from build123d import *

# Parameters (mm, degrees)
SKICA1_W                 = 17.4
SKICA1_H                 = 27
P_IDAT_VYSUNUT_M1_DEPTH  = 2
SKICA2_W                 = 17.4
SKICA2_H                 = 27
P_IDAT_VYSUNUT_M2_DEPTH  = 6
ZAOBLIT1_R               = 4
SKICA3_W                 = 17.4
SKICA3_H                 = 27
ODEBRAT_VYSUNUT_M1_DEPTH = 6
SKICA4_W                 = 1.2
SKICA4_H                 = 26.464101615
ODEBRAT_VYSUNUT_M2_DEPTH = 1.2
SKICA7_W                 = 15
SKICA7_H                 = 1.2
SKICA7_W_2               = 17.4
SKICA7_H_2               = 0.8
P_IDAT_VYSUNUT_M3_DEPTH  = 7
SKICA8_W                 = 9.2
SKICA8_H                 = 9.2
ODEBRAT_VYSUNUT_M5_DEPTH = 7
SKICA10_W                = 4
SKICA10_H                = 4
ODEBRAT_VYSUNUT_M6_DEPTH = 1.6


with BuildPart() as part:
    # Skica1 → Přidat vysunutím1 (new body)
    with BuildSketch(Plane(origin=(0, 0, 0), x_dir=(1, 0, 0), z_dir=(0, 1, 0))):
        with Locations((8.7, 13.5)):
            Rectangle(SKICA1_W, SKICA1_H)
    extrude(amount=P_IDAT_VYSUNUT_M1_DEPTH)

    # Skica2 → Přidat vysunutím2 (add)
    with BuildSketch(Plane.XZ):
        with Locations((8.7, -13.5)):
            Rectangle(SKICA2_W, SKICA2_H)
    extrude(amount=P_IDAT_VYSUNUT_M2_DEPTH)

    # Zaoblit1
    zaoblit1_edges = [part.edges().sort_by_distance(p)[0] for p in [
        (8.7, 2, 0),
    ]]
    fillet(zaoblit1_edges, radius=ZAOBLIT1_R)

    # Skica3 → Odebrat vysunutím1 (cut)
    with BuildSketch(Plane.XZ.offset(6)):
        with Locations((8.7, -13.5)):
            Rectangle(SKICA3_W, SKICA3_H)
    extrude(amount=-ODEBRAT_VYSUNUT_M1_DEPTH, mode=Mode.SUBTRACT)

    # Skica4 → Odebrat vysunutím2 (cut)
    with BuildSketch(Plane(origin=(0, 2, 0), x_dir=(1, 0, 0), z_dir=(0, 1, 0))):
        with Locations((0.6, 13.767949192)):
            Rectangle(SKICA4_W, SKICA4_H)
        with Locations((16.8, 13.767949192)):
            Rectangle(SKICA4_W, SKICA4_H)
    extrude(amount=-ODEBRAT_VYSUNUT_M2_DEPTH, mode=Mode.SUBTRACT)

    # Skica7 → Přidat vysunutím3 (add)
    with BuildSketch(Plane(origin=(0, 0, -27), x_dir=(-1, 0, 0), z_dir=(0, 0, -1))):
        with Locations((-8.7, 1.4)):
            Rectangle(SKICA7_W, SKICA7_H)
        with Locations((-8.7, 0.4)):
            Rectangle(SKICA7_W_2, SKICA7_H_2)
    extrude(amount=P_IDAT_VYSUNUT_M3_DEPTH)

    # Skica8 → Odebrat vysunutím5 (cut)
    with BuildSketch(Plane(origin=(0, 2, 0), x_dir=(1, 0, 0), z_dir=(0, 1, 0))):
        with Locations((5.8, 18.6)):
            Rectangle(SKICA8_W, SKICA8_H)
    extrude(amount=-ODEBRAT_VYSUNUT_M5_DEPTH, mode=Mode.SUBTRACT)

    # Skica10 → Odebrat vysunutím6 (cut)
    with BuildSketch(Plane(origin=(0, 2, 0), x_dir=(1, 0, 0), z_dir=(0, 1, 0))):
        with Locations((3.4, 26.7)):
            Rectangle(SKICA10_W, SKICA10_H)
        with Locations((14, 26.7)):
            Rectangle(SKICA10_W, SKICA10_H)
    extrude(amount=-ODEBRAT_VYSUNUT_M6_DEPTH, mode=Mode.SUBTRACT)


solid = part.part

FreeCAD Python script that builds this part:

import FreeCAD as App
import Part
import Sketcher
from FreeCAD import Vector


def edges_at(feature, points):
    """Names of the edges that pass closest to the given points."""
    edges = feature.Shape.Edges
    near = lambda p: min(range(len(edges)), key=lambda i: edges[i].distToShape(Part.Vertex(*p))[0])
    return sorted({f"Edge{near(p) + 1}" for p in points})

doc = App.newDocument("Part")
body = doc.addObject("PartDesign::Body", "Body")

# Sketch on XZ plane
sketch1 = body.newObject("Sketcher::SketchObject", "Sketch")
sketch1.AttachmentSupport = (doc.getObject("XZ_Plane"), [""])
sketch1.MapMode = "FlatFace"
sketch1.addGeometry(Part.LineSegment(Vector(0, -27, 0), Vector(0, 0, 0)), False)
sketch1.addGeometry(Part.LineSegment(Vector(0, 0, 0), Vector(17, 0, 0)), False)
sketch1.addGeometry(Part.LineSegment(Vector(17, 0, 0), Vector(17, -27, 0)), False)
sketch1.addGeometry(Part.LineSegment(Vector(17, -27, 0), Vector(0, -27, 0)), False)
sketch1.addConstraint(Sketcher.Constraint("Coincident", 0, 2, 1, 1))
sketch1.addConstraint(Sketcher.Constraint("Coincident", 1, 2, 2, 1))
sketch1.addConstraint(Sketcher.Constraint("Coincident", 2, 2, 3, 1))
sketch1.addConstraint(Sketcher.Constraint("Coincident", 3, 2, 0, 1))
sketch1.addConstraint(Sketcher.Constraint("Vertical", 0))
sketch1.addConstraint(Sketcher.Constraint("Horizontal", 1))
sketch1.addConstraint(Sketcher.Constraint("Vertical", 2))
sketch1.addConstraint(Sketcher.Constraint("Horizontal", 3))
sketch1.addConstraint(Sketcher.Constraint("Coincident", 0, 2, -1, 1))
sketch1.addConstraint(Sketcher.Constraint("DistanceY", 0, 1, 0, 2, 27.0))
sketch1.addConstraint(Sketcher.Constraint("DistanceX", 1, 1, 1, 2, 17.4))
pad1 = body.newObject("PartDesign::Pad", "Pad")
pad1.Profile = sketch1
pad1.Length = 2
pad1.Reversed = True

# Sketch on XZ plane
sketch2 = body.newObject("Sketcher::SketchObject", "Sketch001")
sketch2.AttachmentSupport = (doc.getObject("XZ_Plane"), [""])
sketch2.MapMode = "FlatFace"
sketch2.addGeometry(Part.LineSegment(Vector(0, 0, 0), Vector(0, -27, 0)), False)
sketch2.addGeometry(Part.LineSegment(Vector(0, -27, 0), Vector(17, -27, 0)), False)
sketch2.addGeometry(Part.LineSegment(Vector(17, -27, 0), Vector(17, 0, 0)), False)
sketch2.addGeometry(Part.LineSegment(Vector(17, 0, 0), Vector(0, 0, 0)), False)
sketch2.addConstraint(Sketcher.Constraint("Coincident", 0, 2, 1, 1))
sketch2.addConstraint(Sketcher.Constraint("Coincident", 1, 2, 2, 1))
sketch2.addConstraint(Sketcher.Constraint("Coincident", 2, 2, 3, 1))
sketch2.addConstraint(Sketcher.Constraint("Coincident", 3, 2, 0, 1))
sketch2.addConstraint(Sketcher.Constraint("Vertical", 0))
sketch2.addConstraint(Sketcher.Constraint("Horizontal", 1))
sketch2.addConstraint(Sketcher.Constraint("Vertical", 2))
sketch2.addConstraint(Sketcher.Constraint("Horizontal", 3))
sketch2.addConstraint(Sketcher.Constraint("Coincident", 3, 2, -1, 1))
sketch2.addConstraint(Sketcher.Constraint("DistanceY", 0, 2, 0, 1, 27.0))
sketch2.addConstraint(Sketcher.Constraint("DistanceX", 1, 1, 1, 2, 17.4))
pad2 = body.newObject("PartDesign::Pad", "Pad001")
pad2.Profile = sketch2
pad2.Length = 6
doc.recompute()

fillet = body.newObject("PartDesign::Fillet", "Fillet")
fillet.Base = (pad2, edges_at(pad2, [(8.7, 2, 0)]))
fillet.Radius = 4

# Sketch on XZ plane
sketch3 = body.newObject("Sketcher::SketchObject", "Sketch002")
sketch3.AttachmentSupport = (doc.getObject("XZ_Plane"), [""])
sketch3.MapMode = "FlatFace"
sketch3.AttachmentOffset = App.Placement(Vector(0, 0, 6), App.Rotation())
sketch3.addGeometry(Part.LineSegment(Vector(0, 0, 0), Vector(0, -27, 0)), False)
sketch3.addGeometry(Part.LineSegment(Vector(0, -27, 0), Vector(17, -27, 0)), False)
sketch3.addGeometry(Part.LineSegment(Vector(17, -27, 0), Vector(17, 0, 0)), False)
sketch3.addGeometry(Part.LineSegment(Vector(17, 0, 0), Vector(0, 0, 0)), False)
sketch3.addConstraint(Sketcher.Constraint("Coincident", 0, 2, 1, 1))
sketch3.addConstraint(Sketcher.Constraint("Coincident", 1, 2, 2, 1))
sketch3.addConstraint(Sketcher.Constraint("Coincident", 2, 2, 3, 1))
sketch3.addConstraint(Sketcher.Constraint("Coincident", 3, 2, 0, 1))
sketch3.addConstraint(Sketcher.Constraint("Vertical", 0))
sketch3.addConstraint(Sketcher.Constraint("Horizontal", 1))
sketch3.addConstraint(Sketcher.Constraint("Vertical", 2))
sketch3.addConstraint(Sketcher.Constraint("Horizontal", 3))
sketch3.addConstraint(Sketcher.Constraint("Coincident", 3, 2, -1, 1))
sketch3.addConstraint(Sketcher.Constraint("DistanceY", 0, 2, 0, 1, 27.0))
sketch3.addConstraint(Sketcher.Constraint("DistanceX", 1, 1, 1, 2, 17.4))
pocket1 = body.newObject("PartDesign::Pocket", "Pocket")
pocket1.Profile = sketch3
pocket1.Length = 6

# Sketch on XZ plane
sketch4 = body.newObject("Sketcher::SketchObject", "Sketch003")
sketch4.AttachmentSupport = (doc.getObject("XZ_Plane"), [""])
sketch4.MapMode = "FlatFace"
sketch4.AttachmentOffset = App.Placement(Vector(0, 0, -2), App.Rotation())
sketch4.addGeometry(Part.LineSegment(Vector(0, -27, 0), Vector(0, -0.5, 0)), False)
sketch4.addGeometry(Part.LineSegment(Vector(0, -0.5, 0), Vector(1.2, -0.5, 0)), False)
sketch4.addGeometry(Part.LineSegment(Vector(1.2, -0.5, 0), Vector(1.2, -27, 0)), False)
sketch4.addGeometry(Part.LineSegment(Vector(1.2, -27, 0), Vector(0, -27, 0)), False)
sketch4.addGeometry(Part.LineSegment(Vector(16.2, -27, 0), Vector(16.2, -0.5, 0)), False)
sketch4.addGeometry(Part.LineSegment(Vector(16.2, -0.5, 0), Vector(17.4, -0.5, 0)), False)
sketch4.addGeometry(Part.LineSegment(Vector(17.4, -0.5, 0), Vector(17.4, -27, 0)), False)
sketch4.addGeometry(Part.LineSegment(Vector(17.4, -27, 0), Vector(16.2, -27, 0)), False)
sketch4.addConstraint(Sketcher.Constraint("Coincident", 0, 2, 1, 1))
sketch4.addConstraint(Sketcher.Constraint("Coincident", 1, 2, 2, 1))
sketch4.addConstraint(Sketcher.Constraint("Coincident", 2, 2, 3, 1))
sketch4.addConstraint(Sketcher.Constraint("Coincident", 3, 2, 0, 1))
sketch4.addConstraint(Sketcher.Constraint("Coincident", 4, 2, 5, 1))
sketch4.addConstraint(Sketcher.Constraint("Coincident", 5, 2, 6, 1))
sketch4.addConstraint(Sketcher.Constraint("Coincident", 6, 2, 7, 1))
sketch4.addConstraint(Sketcher.Constraint("Coincident", 7, 2, 4, 1))
sketch4.addConstraint(Sketcher.Constraint("Vertical", 0))
sketch4.addConstraint(Sketcher.Constraint("Horizontal", 1))
sketch4.addConstraint(Sketcher.Constraint("Vertical", 2))
sketch4.addConstraint(Sketcher.Constraint("Horizontal", 3))
sketch4.addConstraint(Sketcher.Constraint("Vertical", 4))
sketch4.addConstraint(Sketcher.Constraint("Horizontal", 5))
sketch4.addConstraint(Sketcher.Constraint("Vertical", 6))
sketch4.addConstraint(Sketcher.Constraint("Horizontal", 7))
sketch4.addConstraint(Sketcher.Constraint("PointOnObject", 0, 2, -2))
sketch4.addConstraint(Sketcher.Constraint("Horizontal", 1, 2, 4, 2))
sketch4.addConstraint(Sketcher.Constraint("Horizontal", 3, 2, 6, 2))
sketch4.addConstraint(Sketcher.Constraint("Equal", 3, 5))
sketch4.addConstraint(Sketcher.Constraint("DistanceX", 1, 1, 1, 2, 1.2))
sketch4.addConstraint(Sketcher.Constraint("DistanceY", 2, 2, -1, 1, 27.0))
sketch4.addConstraint(Sketcher.Constraint("DistanceX", 1, 2, 4, 2, 15.0))
sketch4.addConstraint(Sketcher.Constraint("DistanceY", 0, 1, 0, 2, 26.464102))
pocket2 = body.newObject("PartDesign::Pocket", "Pocket001")
pocket2.Profile = sketch4
pocket2.Length = 1.2
pocket2.Reversed = True

# Sketch on XY plane
sketch5 = body.newObject("Sketcher::SketchObject", "Sketch004")
sketch5.AttachmentSupport = (doc.getObject("XY_Plane"), [""])
sketch5.MapMode = "FlatFace"
sketch5.AttachmentOffset = App.Placement(Vector(0, 0, -27), App.Rotation())
sketch5.addGeometry(Part.LineSegment(Vector(16.2, 2, 0), Vector(16.2, 0.8, 0)), False)
sketch5.addGeometry(Part.LineSegment(Vector(16.2, 0.8, 0), Vector(17.4, 0.8, 0)), False)
sketch5.addGeometry(Part.LineSegment(Vector(17.4, 0.8, 0), Vector(17.4, 0, 0)), False)
sketch5.addGeometry(Part.LineSegment(Vector(17.4, 0, 0), Vector(0, 0, 0)), False)
sketch5.addGeometry(Part.LineSegment(Vector(0, 0, 0), Vector(0, 0.8, 0)), False)
sketch5.addGeometry(Part.LineSegment(Vector(0, 0.8, 0), Vector(1.2, 0.8, 0)), False)
sketch5.addGeometry(Part.LineSegment(Vector(1.2, 0.8, 0), Vector(1.2, 2, 0)), False)
sketch5.addGeometry(Part.LineSegment(Vector(1.2, 2, 0), Vector(16.2, 2, 0)), False)
sketch5.addConstraint(Sketcher.Constraint("Coincident", 0, 2, 1, 1))
sketch5.addConstraint(Sketcher.Constraint("Coincident", 1, 2, 2, 1))
sketch5.addConstraint(Sketcher.Constraint("Coincident", 2, 2, 3, 1))
sketch5.addConstraint(Sketcher.Constraint("Coincident", 3, 2, 4, 1))
sketch5.addConstraint(Sketcher.Constraint("Coincident", 4, 2, 5, 1))
sketch5.addConstraint(Sketcher.Constraint("Coincident", 5, 2, 6, 1))
sketch5.addConstraint(Sketcher.Constraint("Coincident", 6, 2, 7, 1))
sketch5.addConstraint(Sketcher.Constraint("Coincident", 7, 2, 0, 1))
sketch5.addConstraint(Sketcher.Constraint("Vertical", 0))
sketch5.addConstraint(Sketcher.Constraint("Horizontal", 1))
sketch5.addConstraint(Sketcher.Constraint("Vertical", 2))
sketch5.addConstraint(Sketcher.Constraint("Horizontal", 3))
sketch5.addConstraint(Sketcher.Constraint("Vertical", 4))
sketch5.addConstraint(Sketcher.Constraint("Horizontal", 5))
sketch5.addConstraint(Sketcher.Constraint("Vertical", 6))
sketch5.addConstraint(Sketcher.Constraint("Horizontal", 7))
sketch5.addConstraint(Sketcher.Constraint("Coincident", 3, 2, -1, 1))
sketch5.addConstraint(Sketcher.Constraint("Horizontal", 1, 2, 4, 2))
sketch5.addConstraint(Sketcher.Constraint("Equal", 1, 5))
sketch5.addConstraint(Sketcher.Constraint("Equal", 5, 0))
sketch5.addConstraint(Sketcher.Constraint("DistanceX", 7, 1, 7, 2, 15.0))
sketch5.addConstraint(Sketcher.Constraint("DistanceX", 1, 1, 1, 2, 1.2))
sketch5.addConstraint(Sketcher.Constraint("DistanceY", 2, 2, 2, 1, 0.8))
pad3 = body.newObject("PartDesign::Pad", "Pad002")
pad3.Profile = sketch5
pad3.Length = 7
pad3.Reversed = True

# Sketch on XZ plane
sketch6 = body.newObject("Sketcher::SketchObject", "Sketch005")
sketch6.AttachmentSupport = (doc.getObject("XZ_Plane"), [""])
sketch6.MapMode = "FlatFace"
sketch6.AttachmentOffset = App.Placement(Vector(0, 0, -2), App.Rotation())
sketch6.addGeometry(Part.LineSegment(Vector(1, -23, 0), Vector(1, -14, 0)), False)
sketch6.addGeometry(Part.LineSegment(Vector(1, -14, 0), Vector(10, -14, 0)), False)
sketch6.addGeometry(Part.LineSegment(Vector(10, -14, 0), Vector(10, -23, 0)), False)
sketch6.addGeometry(Part.LineSegment(Vector(10, -23, 0), Vector(1, -23, 0)), False)
sketch6.addConstraint(Sketcher.Constraint("Coincident", 0, 2, 1, 1))
sketch6.addConstraint(Sketcher.Constraint("Coincident", 1, 2, 2, 1))
sketch6.addConstraint(Sketcher.Constraint("Coincident", 2, 2, 3, 1))
sketch6.addConstraint(Sketcher.Constraint("Coincident", 3, 2, 0, 1))
sketch6.addConstraint(Sketcher.Constraint("Vertical", 0))
sketch6.addConstraint(Sketcher.Constraint("Horizontal", 1))
sketch6.addConstraint(Sketcher.Constraint("Vertical", 2))
sketch6.addConstraint(Sketcher.Constraint("Horizontal", 3))
sketch6.addConstraint(Sketcher.Constraint("Equal", 3, 0))
sketch6.addConstraint(Sketcher.Constraint("DistanceX", 1, 1, 1, 2, 9.2))
sketch6.addConstraint(Sketcher.Constraint("DistanceY", 0, 2, -1, 1, 14.0))
sketch6.addConstraint(Sketcher.Constraint("DistanceX", -1, 1, 0, 2, 1.2))
pocket3 = body.newObject("PartDesign::Pocket", "Pocket002")
pocket3.Profile = sketch6
pocket3.Length = 7
pocket3.Reversed = True

# Sketch on XZ plane
sketch7 = body.newObject("Sketcher::SketchObject", "Sketch006")
sketch7.AttachmentSupport = (doc.getObject("XZ_Plane"), [""])
sketch7.MapMode = "FlatFace"
sketch7.AttachmentOffset = App.Placement(Vector(0, 0, -2), App.Rotation())
sketch7.addGeometry(Part.LineSegment(Vector(1.4, -28.7, 0), Vector(1.4, -24.7, 0)), False)
sketch7.addGeometry(Part.LineSegment(Vector(1.4, -24.7, 0), Vector(5.4, -24.7, 0)), False)
sketch7.addGeometry(Part.LineSegment(Vector(5.4, -24.7, 0), Vector(5.4, -28.7, 0)), False)
sketch7.addGeometry(Part.LineSegment(Vector(5.4, -28.7, 0), Vector(1.4, -28.7, 0)), False)
sketch7.addGeometry(Part.LineSegment(Vector(12, -28.7, 0), Vector(12, -24.7, 0)), False)
sketch7.addGeometry(Part.LineSegment(Vector(12, -24.7, 0), Vector(16, -24.7, 0)), False)
sketch7.addGeometry(Part.LineSegment(Vector(16, -24.7, 0), Vector(16, -28.7, 0)), False)
sketch7.addGeometry(Part.LineSegment(Vector(16, -28.7, 0), Vector(12, -28.7, 0)), False)
sketch7.addConstraint(Sketcher.Constraint("Coincident", 0, 2, 1, 1))
sketch7.addConstraint(Sketcher.Constraint("Coincident", 1, 2, 2, 1))
sketch7.addConstraint(Sketcher.Constraint("Coincident", 2, 2, 3, 1))
sketch7.addConstraint(Sketcher.Constraint("Coincident", 3, 2, 0, 1))
sketch7.addConstraint(Sketcher.Constraint("Coincident", 4, 2, 5, 1))
sketch7.addConstraint(Sketcher.Constraint("Coincident", 5, 2, 6, 1))
sketch7.addConstraint(Sketcher.Constraint("Coincident", 6, 2, 7, 1))
sketch7.addConstraint(Sketcher.Constraint("Coincident", 7, 2, 4, 1))
sketch7.addConstraint(Sketcher.Constraint("Vertical", 0))
sketch7.addConstraint(Sketcher.Constraint("Horizontal", 1))
sketch7.addConstraint(Sketcher.Constraint("Vertical", 2))
sketch7.addConstraint(Sketcher.Constraint("Horizontal", 3))
sketch7.addConstraint(Sketcher.Constraint("Vertical", 4))
sketch7.addConstraint(Sketcher.Constraint("Horizontal", 5))
sketch7.addConstraint(Sketcher.Constraint("Vertical", 6))
sketch7.addConstraint(Sketcher.Constraint("Horizontal", 7))
sketch7.addConstraint(Sketcher.Constraint("Horizontal", 1, 2, 4, 2))
sketch7.addConstraint(Sketcher.Constraint("Horizontal", 3, 2, 6, 2))
sketch7.addConstraint(Sketcher.Constraint("Equal", 3, 5))
sketch7.addConstraint(Sketcher.Constraint("Equal", 7, 0))
sketch7.addConstraint(Sketcher.Constraint("DistanceX", 1, 1, 1, 2, 4.0))
sketch7.addConstraint(Sketcher.Constraint("DistanceX", -1, 1, 4, 2, 12.0))
sketch7.addConstraint(Sketcher.Constraint("DistanceX", -1, 1, 0, 2, 1.4))
sketch7.addConstraint(Sketcher.Constraint("DistanceY", 0, 2, -1, 1, 24.7))
pocket4 = body.newObject("PartDesign::Pocket", "Pocket003")
pocket4.Profile = sketch7
pocket4.Length = 1.6
pocket4.Reversed = True

doc.recompute()
